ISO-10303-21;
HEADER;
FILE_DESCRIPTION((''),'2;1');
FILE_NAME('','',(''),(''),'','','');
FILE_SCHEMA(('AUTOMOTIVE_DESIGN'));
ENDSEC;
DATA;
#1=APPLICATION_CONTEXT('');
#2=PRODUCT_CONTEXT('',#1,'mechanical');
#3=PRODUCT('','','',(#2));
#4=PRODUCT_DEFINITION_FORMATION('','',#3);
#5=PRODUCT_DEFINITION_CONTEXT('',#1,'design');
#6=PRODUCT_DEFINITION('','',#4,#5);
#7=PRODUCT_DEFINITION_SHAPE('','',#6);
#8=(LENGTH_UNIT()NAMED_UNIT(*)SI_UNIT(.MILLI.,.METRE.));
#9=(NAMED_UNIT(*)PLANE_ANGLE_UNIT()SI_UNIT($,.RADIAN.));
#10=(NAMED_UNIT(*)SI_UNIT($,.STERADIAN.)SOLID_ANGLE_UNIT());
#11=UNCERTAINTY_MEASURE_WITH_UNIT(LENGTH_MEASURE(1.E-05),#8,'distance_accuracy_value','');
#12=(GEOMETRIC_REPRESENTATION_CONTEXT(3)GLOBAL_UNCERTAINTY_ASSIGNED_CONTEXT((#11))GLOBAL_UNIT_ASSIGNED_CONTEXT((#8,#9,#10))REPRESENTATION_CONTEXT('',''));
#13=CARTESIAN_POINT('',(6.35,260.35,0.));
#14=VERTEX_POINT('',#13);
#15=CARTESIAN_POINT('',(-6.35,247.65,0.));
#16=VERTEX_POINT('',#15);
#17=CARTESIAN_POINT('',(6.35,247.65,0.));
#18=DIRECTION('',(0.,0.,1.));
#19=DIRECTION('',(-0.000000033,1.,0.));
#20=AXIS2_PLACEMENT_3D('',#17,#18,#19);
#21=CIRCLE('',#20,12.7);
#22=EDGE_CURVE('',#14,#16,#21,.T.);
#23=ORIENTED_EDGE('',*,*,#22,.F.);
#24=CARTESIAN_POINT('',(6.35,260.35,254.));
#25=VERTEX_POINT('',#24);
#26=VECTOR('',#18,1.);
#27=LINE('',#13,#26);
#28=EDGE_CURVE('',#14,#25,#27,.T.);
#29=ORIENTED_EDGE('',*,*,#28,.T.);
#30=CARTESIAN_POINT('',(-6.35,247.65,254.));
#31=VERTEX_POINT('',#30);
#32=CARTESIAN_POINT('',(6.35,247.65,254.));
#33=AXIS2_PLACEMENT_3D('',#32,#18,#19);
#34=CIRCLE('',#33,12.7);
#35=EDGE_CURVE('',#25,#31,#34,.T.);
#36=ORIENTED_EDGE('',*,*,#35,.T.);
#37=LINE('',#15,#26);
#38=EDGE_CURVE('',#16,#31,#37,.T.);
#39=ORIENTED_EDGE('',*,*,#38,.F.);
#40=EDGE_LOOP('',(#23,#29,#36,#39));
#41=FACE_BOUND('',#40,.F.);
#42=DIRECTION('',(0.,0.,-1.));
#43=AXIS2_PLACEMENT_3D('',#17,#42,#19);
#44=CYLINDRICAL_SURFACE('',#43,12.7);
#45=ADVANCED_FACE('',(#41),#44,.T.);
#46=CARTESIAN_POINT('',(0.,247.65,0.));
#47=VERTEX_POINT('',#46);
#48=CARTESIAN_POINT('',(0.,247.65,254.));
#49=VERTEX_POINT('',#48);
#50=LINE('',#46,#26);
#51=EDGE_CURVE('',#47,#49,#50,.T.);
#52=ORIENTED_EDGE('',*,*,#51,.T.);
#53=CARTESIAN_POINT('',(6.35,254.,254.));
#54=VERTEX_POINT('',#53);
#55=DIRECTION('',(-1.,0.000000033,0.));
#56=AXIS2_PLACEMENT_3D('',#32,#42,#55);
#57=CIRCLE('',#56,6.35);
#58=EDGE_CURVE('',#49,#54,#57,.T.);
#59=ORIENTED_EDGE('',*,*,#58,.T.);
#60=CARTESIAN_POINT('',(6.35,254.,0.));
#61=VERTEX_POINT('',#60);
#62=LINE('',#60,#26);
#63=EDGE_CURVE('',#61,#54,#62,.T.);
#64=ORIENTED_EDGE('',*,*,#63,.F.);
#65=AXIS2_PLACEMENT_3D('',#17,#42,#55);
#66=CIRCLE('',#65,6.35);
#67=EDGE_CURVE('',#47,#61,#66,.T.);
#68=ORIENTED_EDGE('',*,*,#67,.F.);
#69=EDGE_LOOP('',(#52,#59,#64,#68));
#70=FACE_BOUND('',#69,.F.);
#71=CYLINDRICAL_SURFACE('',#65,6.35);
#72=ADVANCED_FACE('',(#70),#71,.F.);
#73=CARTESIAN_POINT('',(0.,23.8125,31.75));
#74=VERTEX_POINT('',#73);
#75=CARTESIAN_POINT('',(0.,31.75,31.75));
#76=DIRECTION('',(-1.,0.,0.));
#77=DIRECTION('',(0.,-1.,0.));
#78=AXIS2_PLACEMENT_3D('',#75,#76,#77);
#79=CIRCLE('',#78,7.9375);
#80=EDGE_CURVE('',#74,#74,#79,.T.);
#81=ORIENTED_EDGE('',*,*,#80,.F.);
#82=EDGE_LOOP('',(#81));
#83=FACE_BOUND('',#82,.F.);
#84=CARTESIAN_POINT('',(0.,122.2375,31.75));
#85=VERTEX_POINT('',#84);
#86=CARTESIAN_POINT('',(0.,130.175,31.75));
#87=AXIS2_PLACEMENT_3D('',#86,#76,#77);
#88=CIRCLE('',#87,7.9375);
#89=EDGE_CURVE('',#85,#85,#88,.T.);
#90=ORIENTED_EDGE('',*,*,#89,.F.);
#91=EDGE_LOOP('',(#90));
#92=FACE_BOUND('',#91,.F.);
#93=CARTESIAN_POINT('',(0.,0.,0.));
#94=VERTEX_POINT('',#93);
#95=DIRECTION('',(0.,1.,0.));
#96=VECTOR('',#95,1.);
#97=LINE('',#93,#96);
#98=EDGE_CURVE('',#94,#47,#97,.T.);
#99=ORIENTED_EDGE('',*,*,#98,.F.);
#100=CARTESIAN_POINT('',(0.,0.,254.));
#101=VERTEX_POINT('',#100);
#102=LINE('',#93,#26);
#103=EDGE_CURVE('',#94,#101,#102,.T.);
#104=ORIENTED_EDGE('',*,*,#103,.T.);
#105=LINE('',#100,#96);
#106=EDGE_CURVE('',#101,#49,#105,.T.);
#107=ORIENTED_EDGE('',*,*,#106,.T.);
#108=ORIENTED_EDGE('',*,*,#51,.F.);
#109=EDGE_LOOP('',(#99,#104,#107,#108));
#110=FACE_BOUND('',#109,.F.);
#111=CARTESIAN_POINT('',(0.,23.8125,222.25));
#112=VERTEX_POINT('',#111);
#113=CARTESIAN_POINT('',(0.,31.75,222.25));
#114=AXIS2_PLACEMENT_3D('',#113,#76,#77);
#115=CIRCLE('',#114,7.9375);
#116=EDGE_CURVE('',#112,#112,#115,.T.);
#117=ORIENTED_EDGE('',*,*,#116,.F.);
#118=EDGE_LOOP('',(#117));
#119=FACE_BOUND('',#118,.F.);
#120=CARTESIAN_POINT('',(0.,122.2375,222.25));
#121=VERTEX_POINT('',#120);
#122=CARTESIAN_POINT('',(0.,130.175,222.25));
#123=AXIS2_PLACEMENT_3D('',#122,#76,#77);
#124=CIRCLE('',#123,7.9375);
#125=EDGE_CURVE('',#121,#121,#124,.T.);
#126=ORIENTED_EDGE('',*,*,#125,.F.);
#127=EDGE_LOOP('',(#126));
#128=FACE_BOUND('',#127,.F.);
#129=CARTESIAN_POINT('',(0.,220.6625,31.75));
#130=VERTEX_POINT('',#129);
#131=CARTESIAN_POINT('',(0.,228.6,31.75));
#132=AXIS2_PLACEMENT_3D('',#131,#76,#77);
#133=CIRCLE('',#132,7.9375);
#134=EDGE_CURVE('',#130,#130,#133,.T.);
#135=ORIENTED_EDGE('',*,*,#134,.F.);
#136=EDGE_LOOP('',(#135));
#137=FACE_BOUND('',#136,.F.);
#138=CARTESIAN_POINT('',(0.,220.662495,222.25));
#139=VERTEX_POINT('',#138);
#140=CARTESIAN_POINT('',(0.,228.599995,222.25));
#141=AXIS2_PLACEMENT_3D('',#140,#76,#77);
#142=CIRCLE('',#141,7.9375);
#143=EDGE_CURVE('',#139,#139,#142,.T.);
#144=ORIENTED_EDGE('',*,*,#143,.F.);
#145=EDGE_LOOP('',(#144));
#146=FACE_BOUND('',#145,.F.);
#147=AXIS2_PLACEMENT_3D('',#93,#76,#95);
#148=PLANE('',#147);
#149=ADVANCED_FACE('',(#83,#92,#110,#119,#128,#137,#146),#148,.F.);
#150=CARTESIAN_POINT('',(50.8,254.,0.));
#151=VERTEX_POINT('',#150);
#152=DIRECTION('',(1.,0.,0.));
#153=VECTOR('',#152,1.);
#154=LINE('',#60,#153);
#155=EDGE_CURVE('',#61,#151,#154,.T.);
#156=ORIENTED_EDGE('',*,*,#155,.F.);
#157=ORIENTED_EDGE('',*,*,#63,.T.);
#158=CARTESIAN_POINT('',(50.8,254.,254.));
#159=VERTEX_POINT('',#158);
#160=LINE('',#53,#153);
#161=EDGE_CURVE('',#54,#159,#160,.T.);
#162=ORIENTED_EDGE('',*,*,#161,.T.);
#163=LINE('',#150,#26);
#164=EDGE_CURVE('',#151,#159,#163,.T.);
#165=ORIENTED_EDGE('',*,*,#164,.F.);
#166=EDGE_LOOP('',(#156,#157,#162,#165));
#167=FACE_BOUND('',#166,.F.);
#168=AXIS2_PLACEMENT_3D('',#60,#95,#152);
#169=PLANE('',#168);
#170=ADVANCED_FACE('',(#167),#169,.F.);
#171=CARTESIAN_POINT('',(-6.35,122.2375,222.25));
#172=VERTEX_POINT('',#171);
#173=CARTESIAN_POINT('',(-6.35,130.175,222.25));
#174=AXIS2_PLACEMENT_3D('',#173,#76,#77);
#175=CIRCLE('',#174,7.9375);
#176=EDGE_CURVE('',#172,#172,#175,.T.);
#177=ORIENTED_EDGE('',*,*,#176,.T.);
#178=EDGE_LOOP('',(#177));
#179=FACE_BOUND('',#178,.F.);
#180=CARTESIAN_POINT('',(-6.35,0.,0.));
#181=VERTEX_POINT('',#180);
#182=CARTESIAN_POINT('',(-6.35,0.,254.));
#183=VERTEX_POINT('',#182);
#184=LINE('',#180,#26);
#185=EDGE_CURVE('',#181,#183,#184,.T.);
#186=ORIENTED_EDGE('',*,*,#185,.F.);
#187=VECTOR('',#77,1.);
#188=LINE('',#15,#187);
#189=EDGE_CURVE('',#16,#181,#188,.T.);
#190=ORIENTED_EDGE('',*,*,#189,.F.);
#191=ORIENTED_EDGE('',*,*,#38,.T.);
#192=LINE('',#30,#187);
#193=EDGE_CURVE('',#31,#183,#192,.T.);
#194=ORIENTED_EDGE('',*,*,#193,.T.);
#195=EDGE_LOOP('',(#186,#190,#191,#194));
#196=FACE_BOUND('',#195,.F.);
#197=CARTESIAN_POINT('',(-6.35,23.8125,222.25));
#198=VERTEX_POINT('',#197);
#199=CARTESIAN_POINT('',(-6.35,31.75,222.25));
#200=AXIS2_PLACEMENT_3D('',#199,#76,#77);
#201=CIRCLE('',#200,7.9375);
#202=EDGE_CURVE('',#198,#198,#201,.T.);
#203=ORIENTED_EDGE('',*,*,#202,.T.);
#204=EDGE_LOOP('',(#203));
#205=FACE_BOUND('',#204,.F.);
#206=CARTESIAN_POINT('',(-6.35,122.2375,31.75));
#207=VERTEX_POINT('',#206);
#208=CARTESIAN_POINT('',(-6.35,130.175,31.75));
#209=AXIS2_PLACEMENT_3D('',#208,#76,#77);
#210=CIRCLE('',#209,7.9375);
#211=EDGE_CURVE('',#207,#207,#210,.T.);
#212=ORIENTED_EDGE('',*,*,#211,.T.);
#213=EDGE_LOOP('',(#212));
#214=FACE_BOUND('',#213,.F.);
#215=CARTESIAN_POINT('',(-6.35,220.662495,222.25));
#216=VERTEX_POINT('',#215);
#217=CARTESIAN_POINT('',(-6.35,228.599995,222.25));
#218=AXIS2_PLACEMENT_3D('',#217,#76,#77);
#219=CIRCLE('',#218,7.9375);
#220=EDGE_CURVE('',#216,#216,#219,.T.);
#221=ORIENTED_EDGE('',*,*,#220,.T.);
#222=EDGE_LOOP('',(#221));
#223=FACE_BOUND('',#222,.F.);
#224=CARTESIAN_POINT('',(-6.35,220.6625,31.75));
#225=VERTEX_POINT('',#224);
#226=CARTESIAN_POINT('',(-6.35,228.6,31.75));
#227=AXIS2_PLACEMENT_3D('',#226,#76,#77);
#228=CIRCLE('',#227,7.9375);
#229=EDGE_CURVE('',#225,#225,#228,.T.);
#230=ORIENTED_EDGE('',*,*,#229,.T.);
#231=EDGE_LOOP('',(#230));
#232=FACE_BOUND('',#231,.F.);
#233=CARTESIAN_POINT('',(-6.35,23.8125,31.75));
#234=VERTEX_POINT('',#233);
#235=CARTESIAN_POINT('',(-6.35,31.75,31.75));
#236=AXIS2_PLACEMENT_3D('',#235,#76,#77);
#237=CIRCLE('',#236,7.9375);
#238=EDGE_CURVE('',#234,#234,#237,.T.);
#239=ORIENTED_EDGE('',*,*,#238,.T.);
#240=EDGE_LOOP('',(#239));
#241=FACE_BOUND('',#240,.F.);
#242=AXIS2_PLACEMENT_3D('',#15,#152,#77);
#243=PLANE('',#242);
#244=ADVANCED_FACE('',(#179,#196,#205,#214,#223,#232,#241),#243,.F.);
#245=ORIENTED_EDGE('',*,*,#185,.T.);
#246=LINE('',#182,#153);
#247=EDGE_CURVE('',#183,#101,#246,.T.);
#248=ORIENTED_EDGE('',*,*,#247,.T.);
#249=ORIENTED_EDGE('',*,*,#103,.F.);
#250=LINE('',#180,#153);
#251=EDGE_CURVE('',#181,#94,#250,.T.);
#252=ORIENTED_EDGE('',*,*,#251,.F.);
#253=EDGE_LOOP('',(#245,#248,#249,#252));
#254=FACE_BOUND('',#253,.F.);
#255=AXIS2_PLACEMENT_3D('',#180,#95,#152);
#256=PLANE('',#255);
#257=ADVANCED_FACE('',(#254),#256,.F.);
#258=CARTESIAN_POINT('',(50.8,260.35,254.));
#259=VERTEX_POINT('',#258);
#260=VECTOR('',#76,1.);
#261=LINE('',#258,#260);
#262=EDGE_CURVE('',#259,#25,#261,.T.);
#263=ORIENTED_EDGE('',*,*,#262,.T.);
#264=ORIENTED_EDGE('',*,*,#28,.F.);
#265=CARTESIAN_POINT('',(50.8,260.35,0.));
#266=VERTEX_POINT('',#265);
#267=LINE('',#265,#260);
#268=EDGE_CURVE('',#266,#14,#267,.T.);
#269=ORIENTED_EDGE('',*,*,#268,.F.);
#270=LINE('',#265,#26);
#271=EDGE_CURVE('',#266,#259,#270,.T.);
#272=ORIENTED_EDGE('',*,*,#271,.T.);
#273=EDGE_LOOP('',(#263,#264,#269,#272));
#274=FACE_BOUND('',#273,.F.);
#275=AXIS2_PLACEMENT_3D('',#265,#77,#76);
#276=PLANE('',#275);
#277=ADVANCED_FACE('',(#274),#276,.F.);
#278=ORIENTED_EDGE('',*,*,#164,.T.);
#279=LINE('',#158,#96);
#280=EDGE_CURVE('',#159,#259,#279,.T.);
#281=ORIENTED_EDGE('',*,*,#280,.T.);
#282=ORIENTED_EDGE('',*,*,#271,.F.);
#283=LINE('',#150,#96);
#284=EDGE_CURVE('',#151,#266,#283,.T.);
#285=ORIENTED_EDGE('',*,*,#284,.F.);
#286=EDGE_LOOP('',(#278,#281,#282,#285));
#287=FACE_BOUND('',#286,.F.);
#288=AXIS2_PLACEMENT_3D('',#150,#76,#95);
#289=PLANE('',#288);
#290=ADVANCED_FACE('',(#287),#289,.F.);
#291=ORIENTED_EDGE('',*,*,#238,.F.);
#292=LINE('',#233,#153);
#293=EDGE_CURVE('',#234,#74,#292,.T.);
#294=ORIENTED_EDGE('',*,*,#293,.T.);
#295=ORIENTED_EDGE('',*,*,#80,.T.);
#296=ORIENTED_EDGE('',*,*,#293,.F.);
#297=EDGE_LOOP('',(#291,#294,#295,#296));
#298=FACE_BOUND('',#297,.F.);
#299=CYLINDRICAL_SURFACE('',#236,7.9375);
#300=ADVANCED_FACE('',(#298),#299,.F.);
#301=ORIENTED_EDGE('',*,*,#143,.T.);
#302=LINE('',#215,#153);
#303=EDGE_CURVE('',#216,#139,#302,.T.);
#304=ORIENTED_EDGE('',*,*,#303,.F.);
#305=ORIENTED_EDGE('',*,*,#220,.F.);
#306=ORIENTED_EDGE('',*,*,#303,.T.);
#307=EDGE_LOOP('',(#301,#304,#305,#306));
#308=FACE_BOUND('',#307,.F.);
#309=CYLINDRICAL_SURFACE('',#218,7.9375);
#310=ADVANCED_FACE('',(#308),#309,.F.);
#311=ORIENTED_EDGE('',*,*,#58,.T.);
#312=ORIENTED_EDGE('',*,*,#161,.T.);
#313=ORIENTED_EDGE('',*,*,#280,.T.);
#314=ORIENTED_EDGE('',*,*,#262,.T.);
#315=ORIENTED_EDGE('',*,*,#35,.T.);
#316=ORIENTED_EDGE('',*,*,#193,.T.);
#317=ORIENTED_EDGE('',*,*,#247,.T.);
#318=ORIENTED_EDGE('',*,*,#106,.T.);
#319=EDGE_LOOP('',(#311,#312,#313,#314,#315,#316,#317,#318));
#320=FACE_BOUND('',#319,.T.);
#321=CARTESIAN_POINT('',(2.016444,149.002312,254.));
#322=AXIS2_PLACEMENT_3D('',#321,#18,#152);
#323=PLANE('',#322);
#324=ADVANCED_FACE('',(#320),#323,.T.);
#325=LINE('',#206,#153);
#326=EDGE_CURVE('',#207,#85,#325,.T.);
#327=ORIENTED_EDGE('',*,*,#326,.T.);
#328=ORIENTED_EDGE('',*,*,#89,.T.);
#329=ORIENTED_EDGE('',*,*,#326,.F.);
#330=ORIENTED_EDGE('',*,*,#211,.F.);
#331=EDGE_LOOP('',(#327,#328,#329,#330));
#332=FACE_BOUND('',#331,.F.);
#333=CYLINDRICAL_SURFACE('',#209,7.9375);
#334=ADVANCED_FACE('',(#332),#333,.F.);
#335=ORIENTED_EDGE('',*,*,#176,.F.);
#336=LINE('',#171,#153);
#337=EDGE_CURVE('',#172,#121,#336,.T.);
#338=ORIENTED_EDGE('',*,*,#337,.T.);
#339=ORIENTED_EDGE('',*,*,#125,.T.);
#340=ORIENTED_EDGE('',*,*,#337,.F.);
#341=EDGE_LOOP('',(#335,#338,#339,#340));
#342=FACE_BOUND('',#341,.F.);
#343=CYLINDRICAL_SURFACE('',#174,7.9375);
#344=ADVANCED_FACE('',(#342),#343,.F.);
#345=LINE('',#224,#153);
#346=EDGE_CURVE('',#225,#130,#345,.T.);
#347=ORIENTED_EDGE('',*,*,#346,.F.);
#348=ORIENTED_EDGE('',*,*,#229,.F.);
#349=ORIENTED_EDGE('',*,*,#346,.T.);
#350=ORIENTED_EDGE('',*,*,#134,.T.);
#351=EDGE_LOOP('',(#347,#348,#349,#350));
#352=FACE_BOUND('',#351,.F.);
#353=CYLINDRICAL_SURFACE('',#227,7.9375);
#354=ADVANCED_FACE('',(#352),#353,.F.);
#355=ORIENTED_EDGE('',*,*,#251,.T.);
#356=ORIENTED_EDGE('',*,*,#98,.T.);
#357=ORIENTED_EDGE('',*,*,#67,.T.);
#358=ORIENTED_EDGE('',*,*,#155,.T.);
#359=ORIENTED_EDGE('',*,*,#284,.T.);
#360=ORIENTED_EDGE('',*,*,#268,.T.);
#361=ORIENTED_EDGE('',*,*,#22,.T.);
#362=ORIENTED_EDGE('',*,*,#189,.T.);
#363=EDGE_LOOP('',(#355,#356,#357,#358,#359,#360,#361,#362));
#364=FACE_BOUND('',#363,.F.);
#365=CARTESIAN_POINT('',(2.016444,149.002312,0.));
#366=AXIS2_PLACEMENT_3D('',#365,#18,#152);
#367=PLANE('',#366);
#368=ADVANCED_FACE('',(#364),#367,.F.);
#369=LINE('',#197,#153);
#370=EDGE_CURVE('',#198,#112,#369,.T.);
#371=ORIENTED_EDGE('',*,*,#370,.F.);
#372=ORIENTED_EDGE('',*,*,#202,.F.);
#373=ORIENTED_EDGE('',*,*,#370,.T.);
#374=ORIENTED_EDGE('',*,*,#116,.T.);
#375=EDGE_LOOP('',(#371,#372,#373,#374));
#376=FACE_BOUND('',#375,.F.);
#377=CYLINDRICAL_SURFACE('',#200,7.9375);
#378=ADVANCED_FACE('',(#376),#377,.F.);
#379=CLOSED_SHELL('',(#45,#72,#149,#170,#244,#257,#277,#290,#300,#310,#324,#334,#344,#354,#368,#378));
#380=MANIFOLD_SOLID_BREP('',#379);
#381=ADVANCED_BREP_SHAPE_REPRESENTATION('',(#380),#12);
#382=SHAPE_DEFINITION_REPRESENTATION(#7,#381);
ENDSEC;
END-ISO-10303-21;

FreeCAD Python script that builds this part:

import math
import FreeCAD as App
import Part
import Sketcher
Q = App.Units.Quantity

doc = App.newDocument("Part")
body = doc.addObject("PartDesign::Body", "Body")

# Sketch on XY plane
sketch1 = body.newObject("Sketcher::SketchObject", "Sketch")
sketch1.AttachmentSupport = (doc.getObject("XY_Plane"), [""])
sketch1.MapMode = "FlatFace"
sketch1.addGeometry(Part.LineSegment(App.Vector(-6.35, 0, 0), App.Vector(0, 0, 0)), False)
sketch1.addGeometry(Part.LineSegment(App.Vector(0, 0, 0), App.Vector(0, 247.65, 0)), False)
sketch1.addGeometry(Part.ArcOfCircle(Part.Circle(App.Vector(6.35, 247.65, 0), App.Vector(0, 0, 1), 6.35), math.radians(90.000002), math.radians(179.999998)), False)
sketch1.addGeometry(Part.LineSegment(App.Vector(6.35, 254, 0), App.Vector(50.8, 254, 0)), False)
sketch1.addGeometry(Part.LineSegment(App.Vector(50.8, 254, 0), App.Vector(50.8, 260.35, 0)), False)
sketch1.addGeometry(Part.LineSegment(App.Vector(50.8, 260.35, 0), App.Vector(6.35, 260.35, 0)), False)
sketch1.addGeometry(Part.ArcOfCircle(Part.Circle(App.Vector(6.35, 247.65, 0), App.Vector(0, 0, 1), 12.7), math.radians(90.000002), math.radians(179.999998)), False)
sketch1.addGeometry(Part.LineSegment(App.Vector(-6.35, 247.65, 0), App.Vector(-6.35, 0, 0)), False)
sketch1.addConstraint(Sketcher.Constraint("Coincident", 0, 2, 1, 1))
sketch1.addConstraint(Sketcher.Constraint("Tangent", 1, 2, 2, 2))
sketch1.addConstraint(Sketcher.Constraint("Tangent", 2, 1, 3, 1))
sketch1.addConstraint(Sketcher.Constraint("Coincident", 3, 2, 4, 1))
sketch1.addConstraint(Sketcher.Constraint("Coincident", 4, 2, 5, 1))
sketch1.addConstraint(Sketcher.Constraint("Tangent", 5, 2, 6, 1))
sketch1.addConstraint(Sketcher.Constraint("Tangent", 6, 2, 7, 1))
sketch1.addConstraint(Sketcher.Constraint("Coincident", 7, 2, 0, 1))
sketch1.addConstraint(Sketcher.Constraint("Horizontal", 0))
sketch1.addConstraint(Sketcher.Constraint("Vertical", 1))
sketch1.addConstraint(Sketcher.Constraint("Horizontal", 3))
sketch1.addConstraint(Sketcher.Constraint("Vertical", 4))
sketch1.addConstraint(Sketcher.Constraint("Horizontal", 5))
sketch1.addConstraint(Sketcher.Constraint("Vertical", 7))
sketch1.addConstraint(Sketcher.Constraint("Coincident", 0, 2, -1, 1))
sketch1.addConstraint(Sketcher.Constraint("Coincident", 6, 3, 2, 3))
sketch1.addConstraint(Sketcher.Constraint("Radius", 6, Q("0.5 in")))
sketch1.addConstraint(Sketcher.Constraint("Radius", 2, Q("0.25 in")))
sketch1.addConstraint(Sketcher.Constraint("DistanceY", -1, 1, 2, 1, Q("10 in")))
sketch1.addConstraint(Sketcher.Constraint("DistanceX", -1, 1, 3, 2, Q("2 in")))
pad1 = body.newObject("PartDesign::Pad", "Pad")
pad1.Profile = sketch1
pad1.Length = Q("10 in")

# Sketch on YZ plane
sketch2 = body.newObject("Sketcher::SketchObject", "Sketch001")
sketch2.AttachmentSupport = (doc.getObject("YZ_Plane"), [""])
sketch2.MapMode = "FlatFace"
sketch2.AttachmentOffset = App.Placement(App.Vector(0, 0, -0.25 * 25.4), App.Rotation())
sketch2.addGeometry(Part.Circle(App.Vector(228.6, 31.75, 0), App.Vector(0, 0, 1), 7.9375), False)
sketch2.addGeometry(Part.Circle(App.Vector(228.599995, 222.25, 0), App.Vector(0, 0, 1), 7.9375), False)
sketch2.addGeometry(Part.Circle(App.Vector(130.175, 222.25, 0), App.Vector(0, 0, 1), 7.9375), False)
sketch2.addGeometry(Part.Circle(App.Vector(130.175, 31.75, 0), App.Vector(0, 0, 1), 7.9375), False)
sketch2.addGeometry(Part.Circle(App.Vector(31.75, 31.75, 0), App.Vector(0, 0, 1), 7.9375), False)
sketch2.addGeometry(Part.Circle(App.Vector(31.75, 222.25, 0), App.Vector(0, 0, 1), 7.9375), False)
sketch2.addConstraint(Sketcher.Constraint("Equal", 0, 1))
sketch2.addConstraint(Sketcher.Constraint("Equal", 1, 2))
sketch2.addConstraint(Sketcher.Constraint("Equal", 2, 3))
sketch2.addConstraint(Sketcher.Constraint("Equal", 3, 4))
sketch2.addConstraint(Sketcher.Constraint("Equal", 4, 5))
sketch2.addConstraint(Sketcher.Constraint("Horizontal", 1, 3, 2, 3))
sketch2.addConstraint(Sketcher.Constraint("Horizontal", 0, 3, 3, 3))
sketch2.addConstraint(Sketcher.Constraint("Horizontal", 3, 3, 4, 3))
sketch2.addConstraint(Sketcher.Constraint("Horizontal", 2, 3, 5, 3))
sketch2.addConstraint(Sketcher.Constraint("Vertical", 2, 3, 3, 3))
sketch2.addConstraint(Sketcher.Constraint("Vertical", 4, 3, 5, 3))
sketch2.addConstraint(Sketcher.Constraint("Diameter", 0, Q("0.625 in")))
sketch2.addConstraint(Sketcher.Constraint("DistanceX", -1, 1, 0, 3, Q("9 in")))
sketch2.addConstraint(Sketcher.Constraint("DistanceX", -1, 1, 1, 3, Q("8.9999998 in")))
sketch2.addConstraint(Sketcher.Constraint("DistanceY", 0, 3, 1, 3, Q("7.5 in")))
sketch2.addConstraint(Sketcher.Constraint("DistanceY", -1, 1, 0, 3, Q("1.25 in")))
sketch2.addConstraint(Sketcher.Constraint("DistanceX", -1, 1, 4, 3, Q("1.25 in")))
sketch2.addConstraint(Sketcher.Constraint("DistanceX", -1, 1, 2, 3, Q("5.125 in")))
pocket1 = body.newObject("PartDesign::Pocket", "Pocket")
pocket1.Profile = sketch2
pocket1.Length = Q("1 in")
pocket1.Reversed = True

doc.recompute()
